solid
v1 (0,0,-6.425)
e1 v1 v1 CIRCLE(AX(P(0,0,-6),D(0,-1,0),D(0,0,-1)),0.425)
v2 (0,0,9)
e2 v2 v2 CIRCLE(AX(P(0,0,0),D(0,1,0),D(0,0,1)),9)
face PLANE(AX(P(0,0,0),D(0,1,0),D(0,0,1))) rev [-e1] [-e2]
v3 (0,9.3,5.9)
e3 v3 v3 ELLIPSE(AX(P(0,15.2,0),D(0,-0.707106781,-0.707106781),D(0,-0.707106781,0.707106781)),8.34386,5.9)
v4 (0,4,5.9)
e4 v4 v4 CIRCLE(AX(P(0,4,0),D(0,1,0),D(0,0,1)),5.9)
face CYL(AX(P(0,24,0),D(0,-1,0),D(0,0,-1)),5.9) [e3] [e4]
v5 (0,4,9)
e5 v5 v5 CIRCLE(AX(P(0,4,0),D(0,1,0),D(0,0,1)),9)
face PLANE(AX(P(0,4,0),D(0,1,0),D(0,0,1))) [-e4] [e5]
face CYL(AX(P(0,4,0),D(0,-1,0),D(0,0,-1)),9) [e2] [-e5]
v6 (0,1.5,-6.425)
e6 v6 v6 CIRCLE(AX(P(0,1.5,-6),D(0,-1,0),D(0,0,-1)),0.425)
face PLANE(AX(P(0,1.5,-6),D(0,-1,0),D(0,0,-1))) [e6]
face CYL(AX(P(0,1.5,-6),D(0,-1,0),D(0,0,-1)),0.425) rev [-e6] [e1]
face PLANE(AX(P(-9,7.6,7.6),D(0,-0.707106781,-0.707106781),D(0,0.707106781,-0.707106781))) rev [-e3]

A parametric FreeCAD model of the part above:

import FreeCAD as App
import Part
import Sketcher
from FreeCAD import Vector
Q = App.Units.Quantity

doc = App.newDocument("Part")
body = doc.addObject("PartDesign::Body", "Body")

sketch1 = doc.addObject("Sketcher::SketchObject", "Sketch")
body.addObject(sketch1)
sketch1.AttachmentSupport = (doc.XZ_Plane, [""])
sketch1.MapMode = "FlatFace"
sketch1.addGeometry(Part.Circle(Vector(0, 0, 0), Vector(0, 0, 1), 9), False)
sketch1.addConstraint([
    Sketcher.Constraint("Coincident", 0, 3, -1, 1),
    Sketcher.Constraint("Diameter", 0, Q("18 mm")),
])
pad1 = doc.addObject("PartDesign::Pad", "Pad")
body.addObject(pad1)
pad1.Profile = sketch1
pad1.Length = 4
pad1.Reversed = True

sketch2 = doc.addObject("Sketcher::SketchObject", "Sketch001")
body.addObject(sketch2)
sketch2.AttachmentSupport = (doc.XZ_Plane, [""])
sketch2.MapMode = "FlatFace"
sketch2.AttachmentOffset = App.Placement(Vector(0, 0, -4), App.Rotation())
sketch2.addGeometry(Part.Circle(Vector(0, 0, 0), Vector(0, 0, 1), 6), False)
sketch2.addConstraint([
    Sketcher.Constraint("Coincident", 0, 3, -1, 1),
    Sketcher.Constraint("Diameter", 0, Q("11.8 mm")),
])
pad2 = doc.addObject("PartDesign::Pad", "Pad001")
body.addObject(pad2)
pad2.Profile = sketch2
pad2.Length = 20
pad2.Reversed = True

sketch3 = doc.addObject("Sketcher::SketchObject", "Sketch002")
body.addObject(sketch3)
sketch3.AttachmentSupport = (doc.YZ_Plane, [""])
sketch3.MapMode = "FlatFace"
sketch3.addGeometry([
    Part.LineSegment(Vector(9, 6, 0), Vector(21, -6, 0)),
    Part.LineSegment(Vector(21, -6, 0), Vector(29, -6, 0)),
    Part.LineSegment(Vector(29, -6, 0), Vector(29, 6, 0)),
    Part.LineSegment(Vector(29, 6, 0), Vector(9, 6, 0)),
], False)
sketch3.addConstraint([
    Sketcher.Constraint("Coincident", 0, 2, 1, 1),
    Sketcher.Constraint("Coincident", 1, 2, 2, 1),
    Sketcher.Constraint("Coincident", 2, 2, 3, 1),
    Sketcher.Constraint("Coincident", 3, 2, 0, 1),
    Sketcher.Constraint("Horizontal", 1),
    Sketcher.Constraint("Vertical", 2),
    Sketcher.Constraint("Horizontal", 3),
    Sketcher.Constraint("Angle", 0, Q("-45 deg")),
    Sketcher.Constraint("DistanceY", 2, 1, 2, 2, Q("12.56 mm")),
    Sketcher.Constraint("DistanceX", -1, 1, 0, 2, Q("21.48 mm")),
    Sketcher.Constraint("DistanceY", 0, 2, -1, 1, Q("6.28 mm")),
    Sketcher.Constraint("DistanceX", 1, 1, 1, 2, Q("7.291901 mm")),
])
pocket1 = doc.addObject("PartDesign::Pocket", "Pocket")
body.addObject(pocket1)
pocket1.Profile = sketch3
pocket1.Type = "ThroughAll"
pocket1.Midplane = True

sketch4 = doc.addObject("Sketcher::SketchObject", "Sketch003")
body.addObject(sketch4)
sketch4.AttachmentSupport = (doc.XZ_Plane, [""])
sketch4.MapMode = "FlatFace"
sketch4.addGeometry(Part.Circle(Vector(0, -6, 0), Vector(0, 0, 1), 0.42), False)
sketch4.addConstraint([
    Sketcher.Constraint("PointOnObject", 0, 3, -2),
    Sketcher.Constraint("Diameter", 0, Q("0.85 mm")),
    Sketcher.Constraint("DistanceY", 0, 3, -1, 1, Q("6 mm")),
])
pocket2 = doc.addObject("PartDesign::Pocket", "Pocket001")
body.addObject(pocket2)
pocket2.Profile = sketch4
pocket2.Length = 1.5

doc.recompute()
